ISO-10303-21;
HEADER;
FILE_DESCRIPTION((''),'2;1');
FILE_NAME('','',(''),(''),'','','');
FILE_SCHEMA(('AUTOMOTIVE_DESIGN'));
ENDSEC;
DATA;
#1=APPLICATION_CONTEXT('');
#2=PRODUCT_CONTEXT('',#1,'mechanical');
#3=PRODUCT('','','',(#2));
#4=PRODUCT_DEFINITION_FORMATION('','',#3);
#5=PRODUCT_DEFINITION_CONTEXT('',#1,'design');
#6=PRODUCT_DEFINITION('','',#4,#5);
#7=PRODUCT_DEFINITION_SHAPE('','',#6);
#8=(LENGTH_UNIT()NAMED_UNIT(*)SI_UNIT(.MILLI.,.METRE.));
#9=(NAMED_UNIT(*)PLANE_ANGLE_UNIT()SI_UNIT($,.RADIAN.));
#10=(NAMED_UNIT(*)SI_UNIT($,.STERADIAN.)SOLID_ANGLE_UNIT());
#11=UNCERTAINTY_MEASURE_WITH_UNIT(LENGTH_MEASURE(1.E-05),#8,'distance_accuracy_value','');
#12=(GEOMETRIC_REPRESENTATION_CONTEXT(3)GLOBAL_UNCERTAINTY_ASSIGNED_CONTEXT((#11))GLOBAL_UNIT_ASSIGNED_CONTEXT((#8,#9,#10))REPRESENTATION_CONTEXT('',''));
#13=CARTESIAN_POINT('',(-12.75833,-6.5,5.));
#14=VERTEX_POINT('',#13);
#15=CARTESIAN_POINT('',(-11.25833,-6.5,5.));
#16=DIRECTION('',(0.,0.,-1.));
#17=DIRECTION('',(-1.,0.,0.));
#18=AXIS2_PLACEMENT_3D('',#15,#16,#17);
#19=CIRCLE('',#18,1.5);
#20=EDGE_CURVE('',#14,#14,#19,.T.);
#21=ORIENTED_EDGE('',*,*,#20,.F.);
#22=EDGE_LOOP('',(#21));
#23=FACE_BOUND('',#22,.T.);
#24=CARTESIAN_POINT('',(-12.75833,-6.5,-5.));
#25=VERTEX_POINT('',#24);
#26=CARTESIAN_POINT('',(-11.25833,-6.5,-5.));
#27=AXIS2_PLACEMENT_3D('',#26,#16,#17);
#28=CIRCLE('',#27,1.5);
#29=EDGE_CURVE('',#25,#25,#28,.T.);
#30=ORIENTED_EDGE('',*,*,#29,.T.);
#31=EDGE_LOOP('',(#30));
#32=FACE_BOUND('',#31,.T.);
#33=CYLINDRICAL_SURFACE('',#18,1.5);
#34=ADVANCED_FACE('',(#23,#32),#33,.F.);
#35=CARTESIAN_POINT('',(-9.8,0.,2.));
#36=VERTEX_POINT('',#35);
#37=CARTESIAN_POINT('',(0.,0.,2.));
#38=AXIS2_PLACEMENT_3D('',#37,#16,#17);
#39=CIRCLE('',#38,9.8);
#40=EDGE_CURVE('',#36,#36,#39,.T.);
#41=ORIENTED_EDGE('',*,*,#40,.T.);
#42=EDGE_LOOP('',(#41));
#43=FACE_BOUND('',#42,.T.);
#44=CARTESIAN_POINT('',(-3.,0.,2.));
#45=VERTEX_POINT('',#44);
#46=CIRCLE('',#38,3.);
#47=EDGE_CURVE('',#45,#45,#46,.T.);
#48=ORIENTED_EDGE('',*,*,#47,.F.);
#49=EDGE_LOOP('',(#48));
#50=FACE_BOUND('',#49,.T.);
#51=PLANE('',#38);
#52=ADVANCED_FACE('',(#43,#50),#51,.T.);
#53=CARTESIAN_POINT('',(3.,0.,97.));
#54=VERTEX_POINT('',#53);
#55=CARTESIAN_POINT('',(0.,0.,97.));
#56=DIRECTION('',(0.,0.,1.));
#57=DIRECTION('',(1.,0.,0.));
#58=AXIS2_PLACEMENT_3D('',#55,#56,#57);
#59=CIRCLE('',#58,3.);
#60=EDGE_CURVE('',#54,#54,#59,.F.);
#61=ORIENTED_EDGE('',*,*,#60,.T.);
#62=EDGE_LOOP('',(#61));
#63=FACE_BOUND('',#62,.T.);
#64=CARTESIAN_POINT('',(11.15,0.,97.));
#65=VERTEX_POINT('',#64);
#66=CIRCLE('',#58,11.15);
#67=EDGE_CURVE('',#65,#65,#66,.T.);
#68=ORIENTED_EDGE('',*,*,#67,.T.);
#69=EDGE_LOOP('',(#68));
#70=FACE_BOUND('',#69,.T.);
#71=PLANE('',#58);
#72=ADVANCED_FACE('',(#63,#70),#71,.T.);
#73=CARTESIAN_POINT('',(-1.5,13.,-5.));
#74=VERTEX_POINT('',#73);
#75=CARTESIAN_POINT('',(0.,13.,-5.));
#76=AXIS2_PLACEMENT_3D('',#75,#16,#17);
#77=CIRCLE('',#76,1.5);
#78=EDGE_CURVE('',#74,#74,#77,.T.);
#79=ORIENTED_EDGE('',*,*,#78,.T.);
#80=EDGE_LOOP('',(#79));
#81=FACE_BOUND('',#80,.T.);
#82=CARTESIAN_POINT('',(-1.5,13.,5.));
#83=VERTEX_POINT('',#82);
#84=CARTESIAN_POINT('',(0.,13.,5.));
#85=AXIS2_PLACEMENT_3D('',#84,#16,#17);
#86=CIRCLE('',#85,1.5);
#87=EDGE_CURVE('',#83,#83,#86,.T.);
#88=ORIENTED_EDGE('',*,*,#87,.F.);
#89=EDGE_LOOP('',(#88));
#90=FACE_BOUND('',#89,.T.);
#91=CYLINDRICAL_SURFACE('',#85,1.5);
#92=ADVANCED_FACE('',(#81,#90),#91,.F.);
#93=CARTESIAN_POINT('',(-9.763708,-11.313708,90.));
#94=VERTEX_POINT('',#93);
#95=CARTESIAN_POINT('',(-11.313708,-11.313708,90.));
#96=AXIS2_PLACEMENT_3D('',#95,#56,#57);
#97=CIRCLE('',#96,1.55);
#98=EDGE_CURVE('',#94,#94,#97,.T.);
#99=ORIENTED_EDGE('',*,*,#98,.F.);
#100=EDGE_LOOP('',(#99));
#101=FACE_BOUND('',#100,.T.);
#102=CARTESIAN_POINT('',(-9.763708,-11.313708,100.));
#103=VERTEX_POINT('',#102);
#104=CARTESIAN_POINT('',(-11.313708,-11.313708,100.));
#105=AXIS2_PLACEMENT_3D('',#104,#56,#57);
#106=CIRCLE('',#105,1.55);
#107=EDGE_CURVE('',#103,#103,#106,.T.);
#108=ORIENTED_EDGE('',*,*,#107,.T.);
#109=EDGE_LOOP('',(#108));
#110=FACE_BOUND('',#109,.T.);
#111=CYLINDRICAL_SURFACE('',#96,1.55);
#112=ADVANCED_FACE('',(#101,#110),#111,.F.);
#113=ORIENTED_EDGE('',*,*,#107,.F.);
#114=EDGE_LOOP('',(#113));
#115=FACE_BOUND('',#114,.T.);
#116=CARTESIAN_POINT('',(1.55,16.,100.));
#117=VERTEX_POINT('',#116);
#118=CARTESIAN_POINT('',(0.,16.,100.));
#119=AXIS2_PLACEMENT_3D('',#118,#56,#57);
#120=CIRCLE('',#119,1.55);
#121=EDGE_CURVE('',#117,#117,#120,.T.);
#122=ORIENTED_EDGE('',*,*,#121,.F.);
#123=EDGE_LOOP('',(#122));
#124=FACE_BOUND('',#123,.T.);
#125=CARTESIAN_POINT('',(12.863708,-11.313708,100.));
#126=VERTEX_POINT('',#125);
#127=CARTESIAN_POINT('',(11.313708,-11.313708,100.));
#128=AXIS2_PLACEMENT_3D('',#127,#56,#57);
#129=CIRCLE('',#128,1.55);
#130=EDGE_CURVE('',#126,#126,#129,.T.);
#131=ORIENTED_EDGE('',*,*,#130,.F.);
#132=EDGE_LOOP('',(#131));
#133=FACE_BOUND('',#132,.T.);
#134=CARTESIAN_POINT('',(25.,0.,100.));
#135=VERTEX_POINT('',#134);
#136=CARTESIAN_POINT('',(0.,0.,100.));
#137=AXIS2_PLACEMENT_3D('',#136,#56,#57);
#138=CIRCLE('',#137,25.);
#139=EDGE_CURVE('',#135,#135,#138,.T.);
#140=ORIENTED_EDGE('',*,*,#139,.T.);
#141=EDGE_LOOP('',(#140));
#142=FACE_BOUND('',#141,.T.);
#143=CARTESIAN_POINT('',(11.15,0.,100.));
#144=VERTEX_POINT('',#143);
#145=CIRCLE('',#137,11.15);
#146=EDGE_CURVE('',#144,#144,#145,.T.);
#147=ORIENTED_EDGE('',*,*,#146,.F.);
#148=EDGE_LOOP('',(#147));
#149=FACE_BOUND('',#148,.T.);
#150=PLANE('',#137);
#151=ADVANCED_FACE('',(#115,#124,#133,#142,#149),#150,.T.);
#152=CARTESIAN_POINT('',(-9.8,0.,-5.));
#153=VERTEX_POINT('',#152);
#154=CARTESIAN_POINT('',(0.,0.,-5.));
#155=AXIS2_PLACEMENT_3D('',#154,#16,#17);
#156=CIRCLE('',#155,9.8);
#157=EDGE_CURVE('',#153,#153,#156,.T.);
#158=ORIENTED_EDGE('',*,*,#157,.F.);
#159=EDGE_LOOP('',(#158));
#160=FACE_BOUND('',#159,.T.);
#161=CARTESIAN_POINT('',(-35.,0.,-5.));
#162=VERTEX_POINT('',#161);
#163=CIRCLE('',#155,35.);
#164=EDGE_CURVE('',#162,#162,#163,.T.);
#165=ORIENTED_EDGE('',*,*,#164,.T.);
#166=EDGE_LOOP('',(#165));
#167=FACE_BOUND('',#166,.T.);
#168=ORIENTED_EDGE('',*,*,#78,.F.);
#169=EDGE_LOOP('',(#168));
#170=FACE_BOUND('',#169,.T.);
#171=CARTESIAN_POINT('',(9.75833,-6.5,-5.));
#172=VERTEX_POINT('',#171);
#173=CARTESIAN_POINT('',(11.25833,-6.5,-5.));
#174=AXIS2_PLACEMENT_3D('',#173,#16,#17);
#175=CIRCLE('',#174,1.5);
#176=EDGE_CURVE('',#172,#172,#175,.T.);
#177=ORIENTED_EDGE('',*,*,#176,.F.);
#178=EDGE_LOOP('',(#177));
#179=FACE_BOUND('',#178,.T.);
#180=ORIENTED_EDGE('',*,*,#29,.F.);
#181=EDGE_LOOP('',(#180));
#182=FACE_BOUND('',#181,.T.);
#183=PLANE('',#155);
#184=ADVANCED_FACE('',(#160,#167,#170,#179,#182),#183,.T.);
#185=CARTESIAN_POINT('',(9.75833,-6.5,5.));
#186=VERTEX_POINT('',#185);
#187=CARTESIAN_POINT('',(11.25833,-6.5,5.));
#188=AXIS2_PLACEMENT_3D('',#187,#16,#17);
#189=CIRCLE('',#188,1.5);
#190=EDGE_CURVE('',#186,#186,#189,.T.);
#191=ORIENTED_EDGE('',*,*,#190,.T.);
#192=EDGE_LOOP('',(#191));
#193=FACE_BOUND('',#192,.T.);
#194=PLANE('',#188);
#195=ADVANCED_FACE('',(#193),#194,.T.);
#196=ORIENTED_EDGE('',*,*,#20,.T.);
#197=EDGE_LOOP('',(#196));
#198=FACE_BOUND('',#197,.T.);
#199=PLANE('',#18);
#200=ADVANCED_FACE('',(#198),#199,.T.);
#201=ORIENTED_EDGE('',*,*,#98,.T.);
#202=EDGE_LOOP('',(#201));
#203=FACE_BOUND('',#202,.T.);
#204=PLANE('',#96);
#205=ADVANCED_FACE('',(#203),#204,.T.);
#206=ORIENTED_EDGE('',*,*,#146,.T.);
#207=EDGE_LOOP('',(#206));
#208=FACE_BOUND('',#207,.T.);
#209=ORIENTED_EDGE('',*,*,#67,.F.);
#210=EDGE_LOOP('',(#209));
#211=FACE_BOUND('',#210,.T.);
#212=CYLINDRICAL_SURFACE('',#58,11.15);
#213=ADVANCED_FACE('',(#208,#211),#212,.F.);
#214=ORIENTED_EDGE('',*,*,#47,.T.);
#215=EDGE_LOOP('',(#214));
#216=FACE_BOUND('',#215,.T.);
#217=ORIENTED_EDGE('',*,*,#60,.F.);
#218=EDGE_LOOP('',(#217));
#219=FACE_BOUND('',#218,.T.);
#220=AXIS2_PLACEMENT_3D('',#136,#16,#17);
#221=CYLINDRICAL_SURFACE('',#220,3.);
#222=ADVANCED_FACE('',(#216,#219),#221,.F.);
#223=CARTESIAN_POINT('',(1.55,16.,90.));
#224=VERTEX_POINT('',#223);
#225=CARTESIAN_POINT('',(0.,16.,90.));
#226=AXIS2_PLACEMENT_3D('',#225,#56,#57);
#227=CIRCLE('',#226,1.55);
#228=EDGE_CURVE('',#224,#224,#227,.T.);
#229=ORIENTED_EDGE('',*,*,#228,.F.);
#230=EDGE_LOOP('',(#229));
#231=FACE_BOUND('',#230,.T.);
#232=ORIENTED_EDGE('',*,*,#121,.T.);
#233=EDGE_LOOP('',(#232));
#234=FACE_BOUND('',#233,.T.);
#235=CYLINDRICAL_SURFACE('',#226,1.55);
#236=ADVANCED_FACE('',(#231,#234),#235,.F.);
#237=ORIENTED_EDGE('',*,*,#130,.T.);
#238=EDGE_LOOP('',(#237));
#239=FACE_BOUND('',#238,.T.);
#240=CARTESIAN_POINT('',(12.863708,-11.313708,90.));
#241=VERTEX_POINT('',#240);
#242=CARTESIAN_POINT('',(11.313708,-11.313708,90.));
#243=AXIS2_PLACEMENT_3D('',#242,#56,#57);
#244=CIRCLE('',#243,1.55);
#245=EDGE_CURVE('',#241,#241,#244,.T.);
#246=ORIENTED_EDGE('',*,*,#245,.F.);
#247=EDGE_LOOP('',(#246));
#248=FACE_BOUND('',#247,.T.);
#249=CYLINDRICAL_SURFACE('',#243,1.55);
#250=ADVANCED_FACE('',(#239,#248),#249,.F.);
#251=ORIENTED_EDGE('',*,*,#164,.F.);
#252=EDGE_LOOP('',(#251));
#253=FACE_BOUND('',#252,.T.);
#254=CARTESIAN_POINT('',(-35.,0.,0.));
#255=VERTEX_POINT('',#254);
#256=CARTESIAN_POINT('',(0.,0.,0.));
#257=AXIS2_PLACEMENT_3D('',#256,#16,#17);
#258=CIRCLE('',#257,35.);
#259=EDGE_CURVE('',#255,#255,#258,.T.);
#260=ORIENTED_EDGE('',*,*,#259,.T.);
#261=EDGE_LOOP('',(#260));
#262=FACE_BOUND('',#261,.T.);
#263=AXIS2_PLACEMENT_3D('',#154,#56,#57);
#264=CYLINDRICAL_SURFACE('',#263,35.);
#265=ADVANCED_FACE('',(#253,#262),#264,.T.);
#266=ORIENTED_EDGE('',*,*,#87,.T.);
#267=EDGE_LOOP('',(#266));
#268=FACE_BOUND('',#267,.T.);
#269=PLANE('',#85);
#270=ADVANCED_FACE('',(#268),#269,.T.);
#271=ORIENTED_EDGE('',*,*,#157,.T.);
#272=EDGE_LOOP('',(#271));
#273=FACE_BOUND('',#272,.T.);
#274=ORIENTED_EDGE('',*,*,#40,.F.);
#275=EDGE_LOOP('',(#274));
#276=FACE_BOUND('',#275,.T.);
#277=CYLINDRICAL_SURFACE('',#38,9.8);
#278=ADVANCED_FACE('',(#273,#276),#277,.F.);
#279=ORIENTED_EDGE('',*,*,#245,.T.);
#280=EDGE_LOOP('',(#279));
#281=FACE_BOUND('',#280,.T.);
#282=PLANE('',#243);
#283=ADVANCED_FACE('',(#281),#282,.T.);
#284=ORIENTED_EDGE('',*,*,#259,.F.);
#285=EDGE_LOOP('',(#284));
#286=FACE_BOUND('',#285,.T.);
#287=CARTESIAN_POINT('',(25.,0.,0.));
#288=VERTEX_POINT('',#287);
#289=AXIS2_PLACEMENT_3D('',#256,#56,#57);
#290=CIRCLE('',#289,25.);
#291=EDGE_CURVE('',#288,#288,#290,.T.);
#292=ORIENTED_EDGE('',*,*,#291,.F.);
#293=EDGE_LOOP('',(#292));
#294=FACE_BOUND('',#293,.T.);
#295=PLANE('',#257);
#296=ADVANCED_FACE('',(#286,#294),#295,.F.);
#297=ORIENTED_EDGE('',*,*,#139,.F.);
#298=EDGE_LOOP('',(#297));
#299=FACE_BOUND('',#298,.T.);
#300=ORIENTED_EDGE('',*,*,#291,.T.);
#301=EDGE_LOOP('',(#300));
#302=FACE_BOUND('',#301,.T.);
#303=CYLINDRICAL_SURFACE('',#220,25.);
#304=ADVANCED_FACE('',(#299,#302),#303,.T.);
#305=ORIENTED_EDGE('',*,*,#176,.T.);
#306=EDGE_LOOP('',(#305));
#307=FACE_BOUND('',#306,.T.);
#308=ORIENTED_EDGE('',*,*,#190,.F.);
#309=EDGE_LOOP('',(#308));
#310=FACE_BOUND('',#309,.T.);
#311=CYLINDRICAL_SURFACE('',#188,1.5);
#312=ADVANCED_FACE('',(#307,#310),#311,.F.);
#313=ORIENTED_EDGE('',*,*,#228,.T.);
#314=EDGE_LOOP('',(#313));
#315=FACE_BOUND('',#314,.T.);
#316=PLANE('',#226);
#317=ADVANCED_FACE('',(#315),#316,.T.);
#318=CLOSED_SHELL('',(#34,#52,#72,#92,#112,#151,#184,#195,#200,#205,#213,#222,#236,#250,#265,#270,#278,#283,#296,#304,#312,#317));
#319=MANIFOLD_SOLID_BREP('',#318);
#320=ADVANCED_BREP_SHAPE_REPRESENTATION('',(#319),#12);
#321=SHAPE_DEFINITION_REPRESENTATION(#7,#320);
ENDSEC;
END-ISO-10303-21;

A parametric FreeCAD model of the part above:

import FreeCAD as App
import Part
import Sketcher

doc = App.newDocument("Part")
body = doc.addObject("PartDesign::Body", "Body")

# Sketch on XY plane
sketch1 = body.newObject("Sketcher::SketchObject", "Sketch")
sketch1.AttachmentSupport = (doc.getObject("XY_Plane"), [""])
sketch1.MapMode = "FlatFace"
sketch1.addGeometry(Part.Circle(App.Vector(0, 0, 0), App.Vector(0, 0, 1), 25), False)
sketch1.addConstraint([
    Sketcher.Constraint("Coincident", 0, 3, -1, 1),
    Sketcher.Constraint("Diameter", 0, 50.0),
])
pad1 = body.newObject("PartDesign::Pad", "Pad")
pad1.Profile = sketch1
pad1.Length = 100

# Sketch on XY plane
sketch2 = body.newObject("Sketcher::SketchObject", "Sketch001")
sketch2.AttachmentSupport = (doc.getObject("XY_Plane"), [""])
sketch2.MapMode = "FlatFace"
sketch2.addGeometry(Part.Circle(App.Vector(0, 0, 0), App.Vector(0, 0, 1), 35), False)
sketch2.addConstraint([
    Sketcher.Constraint("Coincident", 0, 3, -1, 1),
    Sketcher.Constraint("Diameter", 0, 70.0),
])
pad2 = body.newObject("PartDesign::Pad", "Pad001")
pad2.Profile = sketch2
pad2.Length = 5
pad2.Reversed = True

# Sketch on XY plane
sketch3 = body.newObject("Sketcher::SketchObject", "Sketch002")
sketch3.AttachmentSupport = (doc.getObject("XY_Plane"), [""])
sketch3.MapMode = "FlatFace"
sketch3.AttachmentOffset = App.Placement(App.Vector(0, 0, -5), App.Rotation())
sketch3.addGeometry(Part.Circle(App.Vector(0, 0, 0), App.Vector(0, 0, 1), 10), False)
sketch3.addConstraint([
    Sketcher.Constraint("Coincident", 0, 3, -1, 1),
    Sketcher.Constraint("Diameter", 0, 19.6),
])
pocket1 = body.newObject("PartDesign::Pocket", "Pocket")
pocket1.Profile = sketch3
pocket1.Length = 7
pocket1.Reversed = True

# Sketch on XY plane
sketch4 = body.newObject("Sketcher::SketchObject", "Sketch003")
sketch4.AttachmentSupport = (doc.getObject("XY_Plane"), [""])
sketch4.MapMode = "FlatFace"
sketch4.AttachmentOffset = App.Placement(App.Vector(0, 0, -5), App.Rotation())
sketch4.addGeometry(Part.Circle(App.Vector(0, 0, 0), App.Vector(0, 0, 1), 3), False)
sketch4.addConstraint([
    Sketcher.Constraint("Coincident", 0, 3, -1, 1),
    Sketcher.Constraint("Diameter", 0, 6.0),
])
pocket2 = body.newObject("PartDesign::Pocket", "Pocket001")
pocket2.Profile = sketch4
pocket2.Type = "ThroughAll"
pocket2.Reversed = True

# Sketch on XY plane
sketch5 = body.newObject("Sketcher::SketchObject", "Sketch004")
sketch5.AttachmentSupport = (doc.getObject("XY_Plane"), [""])
sketch5.MapMode = "FlatFace"
sketch5.AttachmentOffset = App.Placement(App.Vector(0, 0, -5), App.Rotation())
sketch5.addGeometry([
    Part.Circle(App.Vector(0, 13, 0), App.Vector(0, 0, 1), 1.5),
    Part.Circle(App.Vector(-11.3, -6.5, 0), App.Vector(0, 0, 1), 1.5),
    Part.Circle(App.Vector(11.3, -6.5, 0), App.Vector(0, 0, 1), 1.5),
], False)
sketch5.addConstraint([
    Sketcher.Constraint("Equal", 0, 1),
    Sketcher.Constraint("Equal", 1, 2),
    Sketcher.Constraint("Symmetric", 1, 3, 2, 3, -2),
    Sketcher.Constraint("PointOnObject", 0, 3, -2),
    Sketcher.Constraint("Diameter", 0, 3.0),
    Sketcher.Constraint("DistanceY", -1, 1, 0, 3, 13.0),
    Sketcher.Constraint("DistanceY", 1, 3, -1, 1, 6.5),
    Sketcher.Constraint("DistanceX", 1, 3, -1, 1, 11.25833),
])
pocket3 = body.newObject("PartDesign::Pocket", "Pocket002")
pocket3.Profile = sketch5
pocket3.Length = 10
pocket3.Reversed = True

# Sketch on XY plane
sketch6 = body.newObject("Sketcher::SketchObject", "Sketch005")
sketch6.AttachmentSupport = (doc.getObject("XY_Plane"), [""])
sketch6.MapMode = "FlatFace"
sketch6.AttachmentOffset = App.Placement(App.Vector(0, 0, 100), App.Rotation())
sketch6.addGeometry(Part.Circle(App.Vector(0, 0, 0), App.Vector(0, 0, 1), 11), False)
sketch6.addConstraint([
    Sketcher.Constraint("Coincident", 0, 3, -1, 1),
    Sketcher.Constraint("Diameter", 0, 22.3),
])
pocket4 = body.newObject("PartDesign::Pocket", "Pocket003")
pocket4.Profile = sketch6
pocket4.Length = 3

# Sketch on XY plane
sketch7 = body.newObject("Sketcher::SketchObject", "Sketch006")
sketch7.AttachmentSupport = (doc.getObject("XY_Plane"), [""])
sketch7.MapMode = "FlatFace"
sketch7.AttachmentOffset = App.Placement(App.Vector(0, 0, 100), App.Rotation())
sketch7.addGeometry([
    Part.Circle(App.Vector(0, 16, 0), App.Vector(0, 0, 1), 1.6),
    Part.Circle(App.Vector(-11.3, -11.3, 0), App.Vector(0, 0, 1), 1.6),
    Part.Circle(App.Vector(11.3, -11.3, 0), App.Vector(0, 0, 1), 1.6),
], False)
sketch7.addConstraint([
    Sketcher.Constraint("Equal", 0, 1),
    Sketcher.Constraint("Equal", 1, 2),
    Sketcher.Constraint("Symmetric", 1, 3, 2, 3, -2),
    Sketcher.Constraint("PointOnObject", 0, 3, -2),
    Sketcher.Constraint("Diameter", 0, 3.1),
    Sketcher.Constraint("DistanceY", -1, 1, 0, 3, 16.0),
    Sketcher.Constraint("DistanceX", 1, 3, -1, 1, 11.313708),
    Sketcher.Constraint("DistanceY", 1, 3, -1, 1, 11.313708),
])
pocket5 = body.newObject("PartDesign::Pocket", "Pocket004")
pocket5.Profile = sketch7
pocket5.Length = 10

doc.recompute()
